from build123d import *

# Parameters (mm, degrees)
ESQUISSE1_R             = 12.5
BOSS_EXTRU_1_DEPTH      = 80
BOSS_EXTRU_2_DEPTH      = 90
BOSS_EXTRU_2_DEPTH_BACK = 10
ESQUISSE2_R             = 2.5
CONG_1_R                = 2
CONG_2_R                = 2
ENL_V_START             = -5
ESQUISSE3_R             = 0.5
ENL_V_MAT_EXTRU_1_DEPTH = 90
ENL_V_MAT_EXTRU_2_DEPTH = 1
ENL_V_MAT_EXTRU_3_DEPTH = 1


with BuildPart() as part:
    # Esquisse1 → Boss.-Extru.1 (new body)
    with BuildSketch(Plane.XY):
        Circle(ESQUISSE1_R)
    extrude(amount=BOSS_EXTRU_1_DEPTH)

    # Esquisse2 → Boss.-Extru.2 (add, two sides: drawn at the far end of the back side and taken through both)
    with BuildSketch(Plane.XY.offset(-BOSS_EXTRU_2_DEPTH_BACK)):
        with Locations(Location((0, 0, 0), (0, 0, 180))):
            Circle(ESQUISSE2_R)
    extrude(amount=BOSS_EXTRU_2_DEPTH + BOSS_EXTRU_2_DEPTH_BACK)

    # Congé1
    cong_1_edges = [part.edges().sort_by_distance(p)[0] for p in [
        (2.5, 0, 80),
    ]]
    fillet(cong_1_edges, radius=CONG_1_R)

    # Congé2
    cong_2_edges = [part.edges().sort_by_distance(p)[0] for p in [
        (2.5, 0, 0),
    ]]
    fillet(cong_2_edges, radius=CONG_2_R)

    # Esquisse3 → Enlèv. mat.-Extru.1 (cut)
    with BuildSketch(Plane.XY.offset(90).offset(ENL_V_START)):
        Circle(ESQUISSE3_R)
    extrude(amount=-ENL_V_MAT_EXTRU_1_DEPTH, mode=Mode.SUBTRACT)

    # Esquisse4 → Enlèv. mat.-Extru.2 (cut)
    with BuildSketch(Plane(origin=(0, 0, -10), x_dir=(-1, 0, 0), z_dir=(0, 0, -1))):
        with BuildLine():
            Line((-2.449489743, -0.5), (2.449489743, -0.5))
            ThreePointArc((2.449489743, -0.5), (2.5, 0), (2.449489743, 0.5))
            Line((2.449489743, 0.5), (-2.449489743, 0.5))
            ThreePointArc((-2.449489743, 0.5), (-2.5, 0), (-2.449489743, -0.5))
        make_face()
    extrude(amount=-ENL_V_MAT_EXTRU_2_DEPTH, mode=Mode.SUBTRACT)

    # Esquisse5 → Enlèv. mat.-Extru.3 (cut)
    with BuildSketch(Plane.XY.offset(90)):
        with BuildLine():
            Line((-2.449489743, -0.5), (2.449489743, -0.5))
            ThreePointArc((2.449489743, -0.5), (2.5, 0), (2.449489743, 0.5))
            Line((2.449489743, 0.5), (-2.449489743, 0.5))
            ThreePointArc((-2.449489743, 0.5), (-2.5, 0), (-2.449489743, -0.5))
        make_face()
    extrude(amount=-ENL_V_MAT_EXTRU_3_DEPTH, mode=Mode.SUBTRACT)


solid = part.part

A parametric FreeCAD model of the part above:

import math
import FreeCAD as App
import Part
import Sketcher

V = App.Vector


def edges_at(feature, points):
    """Names of the edges that pass closest to the given points."""
    edges = feature.Shape.Edges
    near = lambda p: min(range(len(edges)), key=lambda i: edges[i].distToShape(Part.Vertex(*p))[0])
    return sorted({f"Edge{near(p) + 1}" for p in points})

doc = App.newDocument("Part")
body = doc.addObject("PartDesign::Body", "Body")

# Sketch on XY plane
sketch1 = body.newObject("Sketcher::SketchObject", "Sketch")
sketch1.AttachmentSupport = (doc.getObject("XY_Plane"), [""])
sketch1.MapMode = "FlatFace"
sketch1.addGeometry(Part.Circle(V(0, 0, 0), V(0, 0, 1), 12.5), False)
sketch1.addConstraint([
    Sketcher.Constraint("Coincident", 0, 3, -1, 1),
    Sketcher.Constraint("Diameter", 0, 25.0),
])
pad1 = body.newObject("PartDesign::Pad", "Pad")
pad1.Profile = sketch1
pad1.Length = 80

# Sketch on XY plane
sketch2 = body.newObject("Sketcher::SketchObject", "Sketch001")
sketch2.AttachmentSupport = (doc.getObject("XY_Plane"), [""])
sketch2.MapMode = "FlatFace"
sketch2.addGeometry(Part.Circle(V(0, 0, 0), V(0, 0, 1), 2.5), False)
sketch2.addConstraint([
    Sketcher.Constraint("Coincident", 0, 3, -1, 1),
    Sketcher.Constraint("Diameter", 0, 5.0),
])
pad2 = body.newObject("PartDesign::Pad", "Pad001")
pad2.Profile = sketch2
pad2.Type = "TwoLengths"
pad2.Length = 90
pad2.Length2 = 10
doc.recompute()

fillet = body.newObject("PartDesign::Fillet", "Fillet")
fillet.Base = (pad2, edges_at(pad2, [(2.5, 0, 80)]))
fillet.Radius = 2
doc.recompute()

fillet2 = body.newObject("PartDesign::Fillet", "Fillet001")
fillet2.Base = (fillet, edges_at(fillet, [(2.5, 0, 0)]))
fillet2.Radius = 2

# Sketch on XY plane
sketch3 = body.newObject("Sketcher::SketchObject", "Sketch002")
sketch3.AttachmentSupport = (doc.getObject("XY_Plane"), [""])
sketch3.MapMode = "FlatFace"
sketch3.AttachmentOffset = App.Placement(V(0, 0, 85), App.Rotation())
sketch3.addGeometry(Part.Circle(V(0, 0, 0), V(0, 0, 1), 0.5), False)
sketch3.addConstraint([
    Sketcher.Constraint("Coincident", 0, 3, -1, 1),
    Sketcher.Constraint("Diameter", 0, 1.0),
])
pocket1 = body.newObject("PartDesign::Pocket", "Pocket")
pocket1.Profile = sketch3
pocket1.Length = 90

# Sketch on XY plane
sketch4 = body.newObject("Sketcher::SketchObject", "Sketch003")
sketch4.AttachmentSupport = (doc.getObject("XY_Plane"), [""])
sketch4.MapMode = "FlatFace"
sketch4.AttachmentOffset = App.Placement(V(0, 0, -10), App.Rotation())
sketch4.addGeometry([
    Part.LineSegment(V(2.44949, -0.5, 0), V(-2.44949, -0.5, 0)),
    Part.ArcOfCircle(Part.Circle(V(0, 0, 0), V(0, 0, 1), 2.5), math.radians(168.463041), math.radians(191.536959)),
    Part.LineSegment(V(-2.44949, 0.5, 0), V(2.44949, 0.5, 0)),
    Part.ArcOfCircle(Part.Circle(V(0, 0, 0), V(0, 0, 1), 2.5), math.radians(-11.536959), math.radians(11.536959)),
], False)
sketch4.addConstraint([
    Sketcher.Constraint("Coincident", 0, 2, 1, 2),
    Sketcher.Constraint("Coincident", 1, 1, 2, 1),
    Sketcher.Constraint("Coincident", 2, 2, 3, 2),
    Sketcher.Constraint("Coincident", 3, 1, 0, 1),
    Sketcher.Constraint("Horizontal", 0),
    Sketcher.Constraint("Horizontal", 2),
    Sketcher.Constraint("Coincident", 1, 3, -1, 1),
    Sketcher.Constraint("Coincident", 3, 3, -1, 1),
    Sketcher.Constraint("Equal", 1, 3),
    Sketcher.Constraint("Vertical", 0, 2, 1, 1),
    Sketcher.Constraint("Radius", 1, 2.5),
    Sketcher.Constraint("DistanceY", 0, 2, 1, 1, 1.0),
])
pocket2 = body.newObject("PartDesign::Pocket", "Pocket001")
pocket2.Profile = sketch4
pocket2.Length = 1
pocket2.Reversed = True

# Sketch on XY plane
sketch5 = body.newObject("Sketcher::SketchObject", "Sketch004")
sketch5.AttachmentSupport = (doc.getObject("XY_Plane"), [""])
sketch5.MapMode = "FlatFace"
sketch5.AttachmentOffset = App.Placement(V(0, 0, 90), App.Rotation())
sketch5.addGeometry([
    Part.LineSegment(V(-2.44949, -0.5, 0), V(2.44949, -0.5, 0)),
    Part.ArcOfCircle(Part.Circle(V(0, 0, 0), V(0, 0, 1), 2.5), math.radians(-11.536959), math.radians(11.536959)),
    Part.LineSegment(V(2.44949, 0.5, 0), V(-2.44949, 0.5, 0)),
    Part.ArcOfCircle(Part.Circle(V(0, 0, 0), V(0, 0, 1), 2.5), math.radians(168.463041), math.radians(191.536959)),
], False)
sketch5.addConstraint([
    Sketcher.Constraint("Coincident", 0, 2, 1, 1),
    Sketcher.Constraint("Coincident", 1, 2, 2, 1),
    Sketcher.Constraint("Coincident", 2, 2, 3, 1),
    Sketcher.Constraint("Coincident", 3, 2, 0, 1),
    Sketcher.Constraint("Horizontal", 0),
    Sketcher.Constraint("Horizontal", 2),
    Sketcher.Constraint("Coincident", 1, 3, -1, 1),
    Sketcher.Constraint("Coincident", 3, 3, -1, 1),
    Sketcher.Constraint("Equal", 1, 3),
    Sketcher.Constraint("Vertical", 0, 2, 1, 2),
    Sketcher.Constraint("Radius", 1, 2.5),
    Sketcher.Constraint("DistanceY", 0, 2, 1, 2, 1.0),
])
pocket3 = body.newObject("PartDesign::Pocket", "Pocket002")
pocket3.Profile = sketch5
pocket3.Length = 1

doc.recompute()
